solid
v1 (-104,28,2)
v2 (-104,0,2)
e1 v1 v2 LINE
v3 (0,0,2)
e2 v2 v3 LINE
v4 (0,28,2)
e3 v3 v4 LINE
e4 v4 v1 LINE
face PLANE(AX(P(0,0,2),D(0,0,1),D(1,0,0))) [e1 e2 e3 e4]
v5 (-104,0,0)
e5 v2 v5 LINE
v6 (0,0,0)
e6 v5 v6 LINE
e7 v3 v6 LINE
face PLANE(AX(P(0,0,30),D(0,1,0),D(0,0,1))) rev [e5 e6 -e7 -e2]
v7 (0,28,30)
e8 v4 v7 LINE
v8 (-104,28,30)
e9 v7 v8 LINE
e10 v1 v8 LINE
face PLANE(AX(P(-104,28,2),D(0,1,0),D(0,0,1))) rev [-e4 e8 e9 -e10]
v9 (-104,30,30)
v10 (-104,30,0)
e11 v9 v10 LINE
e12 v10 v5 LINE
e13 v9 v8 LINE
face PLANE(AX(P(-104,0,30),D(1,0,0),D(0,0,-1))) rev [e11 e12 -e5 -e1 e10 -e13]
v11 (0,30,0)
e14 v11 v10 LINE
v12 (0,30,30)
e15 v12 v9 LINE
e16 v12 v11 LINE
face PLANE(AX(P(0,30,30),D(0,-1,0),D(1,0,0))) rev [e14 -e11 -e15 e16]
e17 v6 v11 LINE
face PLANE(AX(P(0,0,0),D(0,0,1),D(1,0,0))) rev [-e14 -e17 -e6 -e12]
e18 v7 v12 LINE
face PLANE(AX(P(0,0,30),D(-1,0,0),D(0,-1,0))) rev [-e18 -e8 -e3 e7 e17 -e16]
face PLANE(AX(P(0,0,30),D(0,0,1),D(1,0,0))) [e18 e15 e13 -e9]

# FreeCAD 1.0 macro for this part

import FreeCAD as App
import Part
import Sketcher
Q = App.Units.Quantity


def add_polygon(sketch, points):
    """Adds a closed chain of lines whose ends are joined by coincident constraints."""
    first, n = sketch.GeometryCount, len(points)
    for a, b in zip(points, points[1:] + points[:1]):
        sketch.addGeometry(Part.LineSegment(App.Vector(*a, 0), App.Vector(*b, 0)), False)
    for i in range(n):
        sketch.addConstraint(Sketcher.Constraint("Coincident", first + i, 2, first + (i + 1) % n, 1))

doc = App.newDocument("Part")
body = doc.addObject("PartDesign::Body", "Body")

# Sketch on XY plane
sketch1 = body.newObject("Sketcher::SketchObject", "Sketch")
sketch1.AttachmentSupport = (doc.getObject("XY_Plane"), [""])
sketch1.MapMode = "FlatFace"
add_polygon(sketch1, [(-104, 30), (-104, 0), (0, 0), (0, 30)])  # lines 0-3
sketch1.addConstraint(Sketcher.Constraint("Vertical", 0))
sketch1.addConstraint(Sketcher.Constraint("Horizontal", 1))
sketch1.addConstraint(Sketcher.Constraint("Vertical", 2))
sketch1.addConstraint(Sketcher.Constraint("Horizontal", 3))
sketch1.addConstraint(Sketcher.Constraint("Coincident", 1, 2, -1, 1))
sketch1.addConstraint(Sketcher.Constraint("DistanceX", 1, 1, 1, 2, Q("104 mm")))
sketch1.addConstraint(Sketcher.Constraint("DistanceY", 0, 2, 0, 1, Q("30 mm")))
pad1 = body.newObject("PartDesign::Pad", "Pad")
pad1.Profile = sketch1
pad1.Length = 30

# Sketch on XY plane
sketch2 = body.newObject("Sketcher::SketchObject", "Sketch001")
sketch2.AttachmentSupport = (doc.getObject("XY_Plane"), [""])
sketch2.MapMode = "FlatFace"
sketch2.AttachmentOffset = App.Placement(App.Vector(0, 0, 30), App.Rotation())
add_polygon(sketch2, [(-104, 28), (-104, 0), (0, 0), (0, 28)])  # lines 0-3
sketch2.addConstraint(Sketcher.Constraint("Vertical", 0))
sketch2.addConstraint(Sketcher.Constraint("Horizontal", 1))
sketch2.addConstraint(Sketcher.Constraint("Vertical", 2))
sketch2.addConstraint(Sketcher.Constraint("Horizontal", 3))
sketch2.addConstraint(Sketcher.Constraint("Coincident", 1, 2, -1, 1))
sketch2.addConstraint(Sketcher.Constraint("DistanceX", 1, 1, 1, 2, Q("104 mm")))
sketch2.addConstraint(Sketcher.Constraint("DistanceY", 0, 2, 0, 1, Q("28 mm")))
pocket1 = body.newObject("PartDesign::Pocket", "Pocket")
pocket1.Profile = sketch2
pocket1.Length = 28

doc.recompute()
